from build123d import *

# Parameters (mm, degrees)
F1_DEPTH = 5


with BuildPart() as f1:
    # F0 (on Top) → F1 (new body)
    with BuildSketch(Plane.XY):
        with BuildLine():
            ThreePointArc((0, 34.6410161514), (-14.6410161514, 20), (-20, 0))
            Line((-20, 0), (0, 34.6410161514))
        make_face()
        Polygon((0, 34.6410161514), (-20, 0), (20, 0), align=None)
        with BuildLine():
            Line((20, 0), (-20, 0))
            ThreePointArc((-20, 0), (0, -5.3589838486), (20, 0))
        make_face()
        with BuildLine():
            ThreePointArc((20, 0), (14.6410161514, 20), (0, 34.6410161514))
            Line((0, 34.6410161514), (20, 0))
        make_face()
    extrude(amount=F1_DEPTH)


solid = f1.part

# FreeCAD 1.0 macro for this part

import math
import FreeCAD as App
import Part
import Sketcher
from FreeCAD import Vector

doc = App.newDocument("Part")
body = doc.addObject("PartDesign::Body", "Body")

sketch1 = body.newObject("Sketcher::SketchObject", "Sketch")
sketch1.AttachmentSupport = (doc.getObject("XY_Plane"), [""])
sketch1.MapMode = "FlatFace"
sketch1.addGeometry(Part.ArcOfCircle(Part.Circle(Vector(20, 0, 0), Vector(0, 0, 1), 40), math.radians(120), math.radians(180)), False)
sketch1.addGeometry(Part.ArcOfCircle(Part.Circle(Vector(0, 34.641016, 0), Vector(0, 0, 1), 40), math.radians(-120), math.radians(-60)), False)
sketch1.addGeometry(Part.ArcOfCircle(Part.Circle(Vector(-20, 0, 0), Vector(0, 0, 1), 40), math.radians(0), math.radians(60)), False)
sketch1.addConstraint(Sketcher.Constraint("Coincident", 0, 2, 1, 1))
sketch1.addConstraint(Sketcher.Constraint("Coincident", 1, 2, 2, 1))
sketch1.addConstraint(Sketcher.Constraint("Coincident", 2, 2, 0, 1))
sketch1.addConstraint(Sketcher.Constraint("Coincident", 0, 2, 2, 3))
sketch1.addConstraint(Sketcher.Constraint("Coincident", 1, 2, 0, 3))
sketch1.addConstraint(Sketcher.Constraint("Equal", 0, 1))
sketch1.addConstraint(Sketcher.Constraint("Symmetric", 0, 3, 2, 3, -1, 1))
sketch1.addConstraint(Sketcher.Constraint("PointOnObject", 0, 3, -1))
sketch1.addConstraint(Sketcher.Constraint("Radius", 0, 40.0))
pad1 = body.newObject("PartDesign::Pad", "Pad")
pad1.Profile = sketch1
pad1.Length = 5

doc.recompute()
